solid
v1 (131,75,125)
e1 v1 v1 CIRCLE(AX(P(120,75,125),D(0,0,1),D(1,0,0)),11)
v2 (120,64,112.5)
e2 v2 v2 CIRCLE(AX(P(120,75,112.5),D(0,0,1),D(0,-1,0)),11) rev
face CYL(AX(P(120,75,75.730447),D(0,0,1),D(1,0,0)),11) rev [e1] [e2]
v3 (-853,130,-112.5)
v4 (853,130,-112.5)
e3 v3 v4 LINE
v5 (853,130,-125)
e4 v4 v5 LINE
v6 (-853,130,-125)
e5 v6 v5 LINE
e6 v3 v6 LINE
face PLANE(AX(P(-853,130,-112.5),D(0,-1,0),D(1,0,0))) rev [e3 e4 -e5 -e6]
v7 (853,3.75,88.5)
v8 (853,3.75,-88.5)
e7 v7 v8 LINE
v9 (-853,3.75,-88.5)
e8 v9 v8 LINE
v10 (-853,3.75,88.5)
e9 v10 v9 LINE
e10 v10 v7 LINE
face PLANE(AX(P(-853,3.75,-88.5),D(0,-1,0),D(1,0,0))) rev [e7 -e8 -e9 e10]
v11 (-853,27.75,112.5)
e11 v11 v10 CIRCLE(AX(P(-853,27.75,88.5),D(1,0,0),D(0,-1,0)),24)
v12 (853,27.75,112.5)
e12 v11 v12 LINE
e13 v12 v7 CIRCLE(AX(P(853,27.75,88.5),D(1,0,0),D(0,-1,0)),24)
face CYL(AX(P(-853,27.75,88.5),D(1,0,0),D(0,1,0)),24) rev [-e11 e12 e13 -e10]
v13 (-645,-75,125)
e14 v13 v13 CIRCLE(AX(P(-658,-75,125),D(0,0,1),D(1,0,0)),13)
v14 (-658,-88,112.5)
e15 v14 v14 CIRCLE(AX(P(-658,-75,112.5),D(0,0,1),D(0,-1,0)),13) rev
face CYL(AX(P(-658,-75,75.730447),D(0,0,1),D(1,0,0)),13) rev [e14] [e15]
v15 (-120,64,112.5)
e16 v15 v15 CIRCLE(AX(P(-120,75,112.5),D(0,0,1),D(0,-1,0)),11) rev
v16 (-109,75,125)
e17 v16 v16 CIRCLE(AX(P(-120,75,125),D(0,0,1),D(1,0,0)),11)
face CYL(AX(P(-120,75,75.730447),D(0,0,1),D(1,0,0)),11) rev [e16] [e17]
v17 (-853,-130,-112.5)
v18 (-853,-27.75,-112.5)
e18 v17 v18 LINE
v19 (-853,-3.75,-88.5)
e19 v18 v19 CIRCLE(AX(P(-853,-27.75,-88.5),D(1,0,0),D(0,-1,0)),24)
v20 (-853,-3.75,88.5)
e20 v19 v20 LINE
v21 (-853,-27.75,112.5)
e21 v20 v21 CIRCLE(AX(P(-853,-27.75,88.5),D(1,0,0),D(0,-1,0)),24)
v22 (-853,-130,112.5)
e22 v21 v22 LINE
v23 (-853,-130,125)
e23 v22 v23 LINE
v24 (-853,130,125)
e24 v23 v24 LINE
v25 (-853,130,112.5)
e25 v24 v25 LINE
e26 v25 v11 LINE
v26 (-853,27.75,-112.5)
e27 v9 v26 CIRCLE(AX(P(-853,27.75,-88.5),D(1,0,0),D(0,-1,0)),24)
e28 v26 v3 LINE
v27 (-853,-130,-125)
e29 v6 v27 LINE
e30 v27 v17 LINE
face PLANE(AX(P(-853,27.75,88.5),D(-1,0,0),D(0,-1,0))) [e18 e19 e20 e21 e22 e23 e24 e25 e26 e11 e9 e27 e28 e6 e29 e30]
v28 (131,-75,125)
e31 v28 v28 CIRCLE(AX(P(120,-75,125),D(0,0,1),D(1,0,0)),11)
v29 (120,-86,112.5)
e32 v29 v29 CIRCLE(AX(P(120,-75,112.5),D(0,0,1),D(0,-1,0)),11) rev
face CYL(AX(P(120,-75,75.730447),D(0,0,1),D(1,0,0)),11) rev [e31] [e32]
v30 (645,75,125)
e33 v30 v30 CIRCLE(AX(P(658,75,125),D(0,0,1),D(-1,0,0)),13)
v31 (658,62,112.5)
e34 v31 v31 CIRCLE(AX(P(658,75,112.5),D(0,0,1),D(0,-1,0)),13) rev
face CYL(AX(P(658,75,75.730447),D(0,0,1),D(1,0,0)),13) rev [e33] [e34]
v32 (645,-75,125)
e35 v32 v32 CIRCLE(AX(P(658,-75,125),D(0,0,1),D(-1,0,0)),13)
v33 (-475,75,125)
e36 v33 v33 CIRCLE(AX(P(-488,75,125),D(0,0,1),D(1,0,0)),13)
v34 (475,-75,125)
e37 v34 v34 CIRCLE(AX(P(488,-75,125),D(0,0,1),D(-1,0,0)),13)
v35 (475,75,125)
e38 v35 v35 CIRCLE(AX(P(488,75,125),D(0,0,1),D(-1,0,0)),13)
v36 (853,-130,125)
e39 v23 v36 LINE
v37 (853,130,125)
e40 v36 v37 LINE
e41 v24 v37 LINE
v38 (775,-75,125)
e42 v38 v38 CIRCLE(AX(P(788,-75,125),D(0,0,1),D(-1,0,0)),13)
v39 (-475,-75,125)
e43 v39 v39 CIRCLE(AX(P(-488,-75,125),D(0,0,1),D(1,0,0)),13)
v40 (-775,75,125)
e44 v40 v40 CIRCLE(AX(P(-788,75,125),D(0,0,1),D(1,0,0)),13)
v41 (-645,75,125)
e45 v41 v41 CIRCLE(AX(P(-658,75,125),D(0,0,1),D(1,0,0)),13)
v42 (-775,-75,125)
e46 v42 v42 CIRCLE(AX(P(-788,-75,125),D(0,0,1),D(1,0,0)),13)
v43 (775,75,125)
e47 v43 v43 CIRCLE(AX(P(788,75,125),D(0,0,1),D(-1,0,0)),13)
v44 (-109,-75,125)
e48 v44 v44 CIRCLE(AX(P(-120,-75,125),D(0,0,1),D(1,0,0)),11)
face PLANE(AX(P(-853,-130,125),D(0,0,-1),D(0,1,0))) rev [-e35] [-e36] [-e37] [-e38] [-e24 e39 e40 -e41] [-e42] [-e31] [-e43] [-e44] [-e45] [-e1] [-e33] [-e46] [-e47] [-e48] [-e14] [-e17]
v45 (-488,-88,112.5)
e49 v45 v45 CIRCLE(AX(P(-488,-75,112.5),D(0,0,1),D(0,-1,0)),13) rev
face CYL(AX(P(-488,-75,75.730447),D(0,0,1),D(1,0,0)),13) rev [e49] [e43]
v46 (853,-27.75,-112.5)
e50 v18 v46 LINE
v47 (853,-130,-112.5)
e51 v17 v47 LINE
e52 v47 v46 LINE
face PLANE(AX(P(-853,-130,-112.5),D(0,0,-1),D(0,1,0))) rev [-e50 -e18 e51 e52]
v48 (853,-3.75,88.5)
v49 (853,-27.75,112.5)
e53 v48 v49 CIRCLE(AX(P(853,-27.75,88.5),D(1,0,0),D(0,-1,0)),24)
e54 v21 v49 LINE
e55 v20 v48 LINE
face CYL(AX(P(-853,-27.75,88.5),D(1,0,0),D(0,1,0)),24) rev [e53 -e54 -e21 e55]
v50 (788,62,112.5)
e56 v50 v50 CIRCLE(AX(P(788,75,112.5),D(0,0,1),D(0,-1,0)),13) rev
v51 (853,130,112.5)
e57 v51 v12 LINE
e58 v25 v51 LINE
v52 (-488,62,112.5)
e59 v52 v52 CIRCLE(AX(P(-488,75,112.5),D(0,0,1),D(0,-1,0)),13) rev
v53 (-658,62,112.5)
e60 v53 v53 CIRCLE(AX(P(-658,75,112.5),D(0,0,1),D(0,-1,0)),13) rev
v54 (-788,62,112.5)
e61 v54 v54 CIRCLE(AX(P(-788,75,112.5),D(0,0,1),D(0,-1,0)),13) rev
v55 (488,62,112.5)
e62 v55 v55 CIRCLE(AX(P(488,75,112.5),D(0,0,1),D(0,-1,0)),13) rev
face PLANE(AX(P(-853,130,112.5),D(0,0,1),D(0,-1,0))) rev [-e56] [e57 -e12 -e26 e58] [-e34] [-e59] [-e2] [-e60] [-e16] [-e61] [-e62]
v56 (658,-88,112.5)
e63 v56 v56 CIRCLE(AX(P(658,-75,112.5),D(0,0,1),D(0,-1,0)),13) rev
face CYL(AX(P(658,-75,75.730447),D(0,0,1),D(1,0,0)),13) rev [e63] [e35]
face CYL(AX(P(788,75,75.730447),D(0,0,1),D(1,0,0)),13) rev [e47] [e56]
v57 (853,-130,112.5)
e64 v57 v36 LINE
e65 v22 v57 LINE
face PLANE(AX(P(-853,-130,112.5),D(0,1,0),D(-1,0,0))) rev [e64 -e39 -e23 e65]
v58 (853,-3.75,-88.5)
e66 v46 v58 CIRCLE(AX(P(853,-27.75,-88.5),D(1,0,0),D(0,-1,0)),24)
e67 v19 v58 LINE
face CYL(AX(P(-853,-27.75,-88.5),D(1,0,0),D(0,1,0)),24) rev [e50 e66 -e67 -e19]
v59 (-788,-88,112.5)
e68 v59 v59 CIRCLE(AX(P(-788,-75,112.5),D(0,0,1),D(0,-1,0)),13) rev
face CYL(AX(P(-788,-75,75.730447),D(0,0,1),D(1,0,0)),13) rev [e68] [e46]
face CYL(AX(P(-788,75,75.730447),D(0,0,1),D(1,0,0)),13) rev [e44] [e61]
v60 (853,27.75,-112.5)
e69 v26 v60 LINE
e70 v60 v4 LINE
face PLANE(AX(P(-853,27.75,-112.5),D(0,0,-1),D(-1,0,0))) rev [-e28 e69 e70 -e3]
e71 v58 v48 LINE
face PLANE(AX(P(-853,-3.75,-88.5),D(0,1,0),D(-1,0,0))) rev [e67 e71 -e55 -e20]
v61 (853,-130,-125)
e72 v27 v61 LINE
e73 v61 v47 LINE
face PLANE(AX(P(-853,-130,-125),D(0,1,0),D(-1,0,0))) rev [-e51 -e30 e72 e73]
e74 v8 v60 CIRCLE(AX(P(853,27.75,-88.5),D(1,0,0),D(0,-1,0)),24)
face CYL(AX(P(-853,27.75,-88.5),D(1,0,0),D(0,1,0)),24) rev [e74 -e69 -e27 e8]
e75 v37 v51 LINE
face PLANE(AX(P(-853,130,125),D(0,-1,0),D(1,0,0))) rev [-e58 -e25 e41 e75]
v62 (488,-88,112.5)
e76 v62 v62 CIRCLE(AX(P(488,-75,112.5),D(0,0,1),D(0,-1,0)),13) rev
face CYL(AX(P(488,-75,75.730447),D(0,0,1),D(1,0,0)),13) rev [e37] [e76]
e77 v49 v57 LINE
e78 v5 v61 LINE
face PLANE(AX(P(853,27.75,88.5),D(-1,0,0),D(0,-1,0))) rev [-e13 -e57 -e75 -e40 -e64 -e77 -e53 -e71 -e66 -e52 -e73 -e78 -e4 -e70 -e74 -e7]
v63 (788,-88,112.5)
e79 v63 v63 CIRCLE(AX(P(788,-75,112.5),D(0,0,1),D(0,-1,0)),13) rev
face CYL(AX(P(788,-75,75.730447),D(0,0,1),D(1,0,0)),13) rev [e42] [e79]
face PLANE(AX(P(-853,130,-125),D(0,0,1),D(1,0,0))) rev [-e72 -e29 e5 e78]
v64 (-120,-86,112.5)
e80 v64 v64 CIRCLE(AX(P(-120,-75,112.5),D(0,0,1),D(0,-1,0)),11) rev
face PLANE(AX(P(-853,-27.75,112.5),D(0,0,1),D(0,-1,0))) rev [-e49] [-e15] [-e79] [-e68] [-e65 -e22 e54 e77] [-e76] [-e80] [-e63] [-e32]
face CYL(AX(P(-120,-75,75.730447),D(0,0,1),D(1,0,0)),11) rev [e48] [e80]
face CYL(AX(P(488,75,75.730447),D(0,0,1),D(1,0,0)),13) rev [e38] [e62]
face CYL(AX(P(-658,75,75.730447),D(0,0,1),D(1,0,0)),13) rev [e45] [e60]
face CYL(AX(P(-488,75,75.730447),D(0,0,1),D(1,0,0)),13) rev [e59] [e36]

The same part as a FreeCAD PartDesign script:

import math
import FreeCAD as App
import Part
import Sketcher
from FreeCAD import Vector
Q = App.Units.Quantity

doc = App.newDocument("Part")
body = doc.addObject("PartDesign::Body", "Body")

sketch1 = body.newObject("Sketcher::SketchObject", "Sketch")
sketch1.AttachmentSupport = (doc.getObject("YZ_Plane"), [""])
sketch1.MapMode = "FlatFace"
sketch1.AttachmentOffset = App.Placement(Vector(0, 0, 853), App.Rotation())
sketch1.addGeometry([
    Part.LineSegment(Vector(-130, 125, 0), Vector(130, 125, 0)),
    Part.LineSegment(Vector(130, 125, 0), Vector(130, 112, 0)),
    Part.LineSegment(Vector(130, 112, 0), Vector(28, 112, 0)),
    Part.ArcOfCircle(Part.Circle(Vector(28, 88, 0), Vector(0, 0, 1), 24), math.radians(90), math.radians(180)),
    Part.LineSegment(Vector(4, 88, 0), Vector(4, -88, 0)),
    Part.ArcOfCircle(Part.Circle(Vector(28, -88, 0), Vector(0, 0, 1), 24), math.radians(-180), math.radians(-90)),
    Part.LineSegment(Vector(28, -112, 0), Vector(130, -112, 0)),
    Part.LineSegment(Vector(130, -112, 0), Vector(130, -125, 0)),
    Part.LineSegment(Vector(130, -125, 0), Vector(-130, -125, 0)),
    Part.LineSegment(Vector(-130, -125, 0), Vector(-130, -112, 0)),
    Part.LineSegment(Vector(-130, -112, 0), Vector(-28, -112, 0)),
    Part.ArcOfCircle(Part.Circle(Vector(-28, -88, 0), Vector(0, 0, 1), 24), math.radians(-90), math.radians(0)),
    Part.LineSegment(Vector(-4, -88, 0), Vector(-4, 88, 0)),
    Part.ArcOfCircle(Part.Circle(Vector(-28, 88, 0), Vector(0, 0, 1), 24), math.radians(0), math.radians(90)),
    Part.LineSegment(Vector(-28, 112, 0), Vector(-130, 112, 0)),
    Part.LineSegment(Vector(-130, 112, 0), Vector(-130, 125, 0)),
], False)
sketch1.addConstraint([
    Sketcher.Constraint("Coincident", 0, 2, 1, 1),
    Sketcher.Constraint("Coincident", 1, 2, 2, 1),
    Sketcher.Constraint("Tangent", 2, 2, 3, 1),
    Sketcher.Constraint("Tangent", 3, 2, 4, 1),
    Sketcher.Constraint("Tangent", 4, 2, 5, 1),
    Sketcher.Constraint("Tangent", 5, 2, 6, 1),
    Sketcher.Constraint("Coincident", 6, 2, 7, 1),
    Sketcher.Constraint("Coincident", 7, 2, 8, 1),
    Sketcher.Constraint("Coincident", 8, 2, 9, 1),
    Sketcher.Constraint("Coincident", 9, 2, 10, 1),
    Sketcher.Constraint("Tangent", 10, 2, 11, 1),
    Sketcher.Constraint("Tangent", 11, 2, 12, 1),
    Sketcher.Constraint("Tangent", 12, 2, 13, 1),
    Sketcher.Constraint("Tangent", 13, 2, 14, 1),
    Sketcher.Constraint("Coincident", 14, 2, 15, 1),
    Sketcher.Constraint("Coincident", 15, 2, 0, 1),
    Sketcher.Constraint("Horizontal", 0),
    Sketcher.Constraint("Vertical", 1),
    Sketcher.Constraint("Horizontal", 2),
    Sketcher.Constraint("Vertical", 4),
    Sketcher.Constraint("Horizontal", 6),
    Sketcher.Constraint("Vertical", 7),
    Sketcher.Constraint("Horizontal", 8),
    Sketcher.Constraint("Vertical", 9),
    Sketcher.Constraint("Horizontal", 10),
    Sketcher.Constraint("Vertical", 12),
    Sketcher.Constraint("Horizontal", 14),
    Sketcher.Constraint("Vertical", 15),
    Sketcher.Constraint("Equal", 3, 5),
    Sketcher.Constraint("Equal", 5, 11),
    Sketcher.Constraint("Equal", 11, 13),
    Sketcher.Constraint("Symmetric", 3, 3, 11, 3, -1, 1),
    Sketcher.Constraint("Symmetric", 0, 2, 8, 2, -1, 1),
    Sketcher.Constraint("Symmetric", 6, 2, 14, 2, -1, 1),
    Sketcher.Constraint("Symmetric", 6, 2, 9, 2, -2),
    Sketcher.Constraint("Radius", 3, Q("24 mm")),
    Sketcher.Constraint("DistanceX", 0, 1, 0, 2, Q("260 mm")),
    Sketcher.Constraint("DistanceY", 4, 2, 4, 1, Q("177 mm")),
    Sketcher.Constraint("DistanceY", 1, 2, 1, 1, Q("12.5 mm")),
    Sketcher.Constraint("DistanceX", 2, 2, 2, 1, Q("102.25 mm")),
])
pad1 = body.newObject("PartDesign::Pad", "Pad")
pad1.Profile = sketch1
pad1.Length = 1706
pad1.Reversed = True

sketch2 = body.newObject("Sketcher::SketchObject", "Sketch001")
sketch2.AttachmentSupport = (doc.getObject("XY_Plane"), [""])
sketch2.MapMode = "FlatFace"
sketch2.AttachmentOffset = App.Placement(Vector(0, 0, 125), App.Rotation())
sketch2.addGeometry([
    Part.Circle(Vector(-788, 75, 0), Vector(0, 0, 1), 13),
    Part.Circle(Vector(-788, -75, 0), Vector(0, 0, 1), 13),
    Part.Circle(Vector(-658, -75, 0), Vector(0, 0, 1), 13),
    Part.Circle(Vector(-658, 75, 0), Vector(0, 0, 1), 13),
    Part.Circle(Vector(-488, 75, 0), Vector(0, 0, 1), 13),
    Part.Circle(Vector(-488, -75, 0), Vector(0, 0, 1), 13),
    Part.Circle(Vector(488, -75, 0), Vector(0, 0, 1), 13),
    Part.Circle(Vector(488, 75, 0), Vector(0, 0, 1), 13),
    Part.Circle(Vector(658, 75, 0), Vector(0, 0, 1), 13),
    Part.Circle(Vector(658, -75, 0), Vector(0, 0, 1), 13),
    Part.Circle(Vector(788, -75, 0), Vector(0, 0, 1), 13),
    Part.Circle(Vector(788, 75, 0), Vector(0, 0, 1), 13),
    Part.Circle(Vector(-120, 75, 0), Vector(0, 0, 1), 11),
    Part.Circle(Vector(120, 75, 0), Vector(0, 0, 1), 11),
    Part.Circle(Vector(-120, -75, 0), Vector(0, 0, 1), 11),
    Part.Circle(Vector(120, -75, 0), Vector(0, 0, 1), 11),
], False)
sketch2.addConstraint([
    Sketcher.Constraint("Equal", 0, 1),
    Sketcher.Constraint("Equal", 1, 2),
    Sketcher.Constraint("Equal", 2, 3),
    Sketcher.Constraint("Equal", 3, 4),
    Sketcher.Constraint("Equal", 4, 5),
    Sketcher.Constraint("Equal", 5, 6),
    Sketcher.Constraint("Equal", 6, 7),
    Sketcher.Constraint("Equal", 7, 8),
    Sketcher.Constraint("Equal", 8, 9),
    Sketcher.Constraint("Equal", 9, 10),
    Sketcher.Constraint("Equal", 10, 11),
    Sketcher.Constraint("Equal", 12, 13),
    Sketcher.Constraint("Equal", 13, 14),
    Sketcher.Constraint("Equal", 14, 15),
    Sketcher.Constraint("Symmetric", 4, 3, 6, 3, -1, 1),
    Sketcher.Constraint("Symmetric", 5, 3, 7, 3, -1, 1),
    Sketcher.Constraint("Symmetric", 2, 3, 8, 3, -1, 1),
    Sketcher.Constraint("Symmetric", 3, 3, 9, 3, -1, 1),
    Sketcher.Constraint("Symmetric", 0, 3, 10, 3, -1, 1),
    Sketcher.Constraint("Symmetric", 1, 3, 11, 3, -1, 1),
    Sketcher.Constraint("Symmetric", 13, 3, 14, 3, -1, 1),
    Sketcher.Constraint("Symmetric", 12, 3, 15, 3, -1, 1),
    Sketcher.Constraint("Symmetric", 5, 3, 6, 3, -2),
    Sketcher.Constraint("Symmetric", 3, 3, 8, 3, -2),
    Sketcher.Constraint("Symmetric", 1, 3, 10, 3, -2),
    Sketcher.Constraint("Symmetric", 12, 3, 13, 3, -2),
    Sketcher.Constraint("Horizontal", 1, 3, 2, 3),
    Sketcher.Constraint("Horizontal", 3, 3, 4, 3),
    Sketcher.Constraint("Horizontal", 11, 3, 12, 3),
    Sketcher.Constraint("Diameter", 0, Q("26 mm")),
    Sketcher.Constraint("Diameter", 12, Q("22 mm")),
    Sketcher.Constraint("DistanceX", 0, 3, -1, 1, Q("788 mm")),
    Sketcher.Constraint("DistanceY", -1, 1, 0, 3, Q("75 mm")),
    Sketcher.Constraint("DistanceX", 2, 3, -1, 1, Q("658 mm")),
    Sketcher.Constraint("DistanceX", 4, 3, -1, 1, Q("488 mm")),
    Sketcher.Constraint("DistanceX", 12, 3, -1, 1, Q("120 mm")),
])
pocket1 = body.newObject("PartDesign::Pocket", "Pocket")
pocket1.Profile = sketch2
pocket1.Length = 12.5

doc.recompute()
